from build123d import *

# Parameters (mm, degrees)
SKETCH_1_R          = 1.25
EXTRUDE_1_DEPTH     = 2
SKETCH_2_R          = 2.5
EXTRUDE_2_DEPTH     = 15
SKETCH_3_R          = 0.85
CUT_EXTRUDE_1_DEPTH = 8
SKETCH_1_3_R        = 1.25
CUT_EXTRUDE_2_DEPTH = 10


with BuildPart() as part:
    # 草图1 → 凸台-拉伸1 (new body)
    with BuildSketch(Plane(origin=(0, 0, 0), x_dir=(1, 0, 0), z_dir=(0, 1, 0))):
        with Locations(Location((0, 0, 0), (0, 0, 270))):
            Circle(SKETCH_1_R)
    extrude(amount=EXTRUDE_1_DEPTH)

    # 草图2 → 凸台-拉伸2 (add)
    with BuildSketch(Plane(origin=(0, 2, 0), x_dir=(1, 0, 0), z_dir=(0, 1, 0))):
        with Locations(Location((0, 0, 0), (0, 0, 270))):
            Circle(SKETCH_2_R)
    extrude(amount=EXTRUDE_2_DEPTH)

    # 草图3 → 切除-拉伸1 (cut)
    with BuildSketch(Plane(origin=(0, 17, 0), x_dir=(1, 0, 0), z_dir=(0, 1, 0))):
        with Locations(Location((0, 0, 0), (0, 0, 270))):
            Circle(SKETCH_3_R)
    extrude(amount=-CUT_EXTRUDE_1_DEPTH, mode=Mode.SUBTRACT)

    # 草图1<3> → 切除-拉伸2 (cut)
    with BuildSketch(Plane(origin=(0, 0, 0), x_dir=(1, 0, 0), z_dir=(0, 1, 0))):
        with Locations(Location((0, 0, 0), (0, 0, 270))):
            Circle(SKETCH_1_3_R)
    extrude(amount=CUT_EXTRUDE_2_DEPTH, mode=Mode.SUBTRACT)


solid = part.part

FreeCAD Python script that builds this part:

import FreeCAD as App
import Part
import Sketcher
Q = App.Units.Quantity

doc = App.newDocument("Part")
body = doc.addObject("PartDesign::Body", "Body")

# Sketch on XZ plane
sketch1 = doc.addObject("Sketcher::SketchObject", "Sketch")
body.addObject(sketch1)
sketch1.AttachmentSupport = (doc.XZ_Plane, [""])
sketch1.MapMode = "FlatFace"
sketch1.addGeometry(Part.Circle(App.Vector(0, 0, 0), App.Vector(0, 0, 1), 1.2), False)
sketch1.addConstraint(Sketcher.Constraint("Coincident", 0, 3, -1, 1))
sketch1.addConstraint(Sketcher.Constraint("Diameter", 0, Q("2.5 mm")))
pad1 = doc.addObject("PartDesign::Pad", "Pad")
body.addObject(pad1)
pad1.Profile = sketch1
pad1.Length = 2
pad1.Reversed = True

# Sketch on XZ plane
sketch2 = doc.addObject("Sketcher::SketchObject", "Sketch001")
body.addObject(sketch2)
sketch2.AttachmentSupport = (doc.XZ_Plane, [""])
sketch2.MapMode = "FlatFace"
sketch2.AttachmentOffset = App.Placement(App.Vector(0, 0, -2), App.Rotation())
sketch2.addGeometry(Part.Circle(App.Vector(0, 0, 0), App.Vector(0, 0, 1), 2.5), False)
sketch2.addConstraint(Sketcher.Constraint("Coincident", 0, 3, -1, 1))
sketch2.addConstraint(Sketcher.Constraint("Diameter", 0, Q("5 mm")))
pad2 = doc.addObject("PartDesign::Pad", "Pad001")
body.addObject(pad2)
pad2.Profile = sketch2
pad2.Length = 15
pad2.Reversed = True

# Sketch on XZ plane
sketch3 = doc.addObject("Sketcher::SketchObject", "Sketch002")
body.addObject(sketch3)
sketch3.AttachmentSupport = (doc.XZ_Plane, [""])
sketch3.MapMode = "FlatFace"
sketch3.AttachmentOffset = App.Placement(App.Vector(0, 0, -17), App.Rotation())
sketch3.addGeometry(Part.Circle(App.Vector(0, 0, 0), App.Vector(0, 0, 1), 0.8), False)
sketch3.addConstraint(Sketcher.Constraint("Coincident", 0, 3, -1, 1))
sketch3.addConstraint(Sketcher.Constraint("Diameter", 0, Q("1.7 mm")))
pocket1 = doc.addObject("PartDesign::Pocket", "Pocket")
body.addObject(pocket1)
pocket1.Profile = sketch3
pocket1.Length = 8
pocket1.Reversed = True

# Sketch on XZ plane
sketch4 = doc.addObject("Sketcher::SketchObject", "Sketch003")
body.addObject(sketch4)
sketch4.AttachmentSupport = (doc.XZ_Plane, [""])
sketch4.MapMode = "FlatFace"
sketch4.addGeometry(Part.Circle(App.Vector(0, 0, 0), App.Vector(0, 0, 1), 1.2), False)
sketch4.addConstraint(Sketcher.Constraint("Coincident", 0, 3, -1, 1))
sketch4.addConstraint(Sketcher.Constraint("Diameter", 0, Q("2.5 mm")))
pocket2 = doc.addObject("PartDesign::Pocket", "Pocket001")
body.addObject(pocket2)
pocket2.Profile = sketch4
pocket2.Length = 10

doc.recompute()
